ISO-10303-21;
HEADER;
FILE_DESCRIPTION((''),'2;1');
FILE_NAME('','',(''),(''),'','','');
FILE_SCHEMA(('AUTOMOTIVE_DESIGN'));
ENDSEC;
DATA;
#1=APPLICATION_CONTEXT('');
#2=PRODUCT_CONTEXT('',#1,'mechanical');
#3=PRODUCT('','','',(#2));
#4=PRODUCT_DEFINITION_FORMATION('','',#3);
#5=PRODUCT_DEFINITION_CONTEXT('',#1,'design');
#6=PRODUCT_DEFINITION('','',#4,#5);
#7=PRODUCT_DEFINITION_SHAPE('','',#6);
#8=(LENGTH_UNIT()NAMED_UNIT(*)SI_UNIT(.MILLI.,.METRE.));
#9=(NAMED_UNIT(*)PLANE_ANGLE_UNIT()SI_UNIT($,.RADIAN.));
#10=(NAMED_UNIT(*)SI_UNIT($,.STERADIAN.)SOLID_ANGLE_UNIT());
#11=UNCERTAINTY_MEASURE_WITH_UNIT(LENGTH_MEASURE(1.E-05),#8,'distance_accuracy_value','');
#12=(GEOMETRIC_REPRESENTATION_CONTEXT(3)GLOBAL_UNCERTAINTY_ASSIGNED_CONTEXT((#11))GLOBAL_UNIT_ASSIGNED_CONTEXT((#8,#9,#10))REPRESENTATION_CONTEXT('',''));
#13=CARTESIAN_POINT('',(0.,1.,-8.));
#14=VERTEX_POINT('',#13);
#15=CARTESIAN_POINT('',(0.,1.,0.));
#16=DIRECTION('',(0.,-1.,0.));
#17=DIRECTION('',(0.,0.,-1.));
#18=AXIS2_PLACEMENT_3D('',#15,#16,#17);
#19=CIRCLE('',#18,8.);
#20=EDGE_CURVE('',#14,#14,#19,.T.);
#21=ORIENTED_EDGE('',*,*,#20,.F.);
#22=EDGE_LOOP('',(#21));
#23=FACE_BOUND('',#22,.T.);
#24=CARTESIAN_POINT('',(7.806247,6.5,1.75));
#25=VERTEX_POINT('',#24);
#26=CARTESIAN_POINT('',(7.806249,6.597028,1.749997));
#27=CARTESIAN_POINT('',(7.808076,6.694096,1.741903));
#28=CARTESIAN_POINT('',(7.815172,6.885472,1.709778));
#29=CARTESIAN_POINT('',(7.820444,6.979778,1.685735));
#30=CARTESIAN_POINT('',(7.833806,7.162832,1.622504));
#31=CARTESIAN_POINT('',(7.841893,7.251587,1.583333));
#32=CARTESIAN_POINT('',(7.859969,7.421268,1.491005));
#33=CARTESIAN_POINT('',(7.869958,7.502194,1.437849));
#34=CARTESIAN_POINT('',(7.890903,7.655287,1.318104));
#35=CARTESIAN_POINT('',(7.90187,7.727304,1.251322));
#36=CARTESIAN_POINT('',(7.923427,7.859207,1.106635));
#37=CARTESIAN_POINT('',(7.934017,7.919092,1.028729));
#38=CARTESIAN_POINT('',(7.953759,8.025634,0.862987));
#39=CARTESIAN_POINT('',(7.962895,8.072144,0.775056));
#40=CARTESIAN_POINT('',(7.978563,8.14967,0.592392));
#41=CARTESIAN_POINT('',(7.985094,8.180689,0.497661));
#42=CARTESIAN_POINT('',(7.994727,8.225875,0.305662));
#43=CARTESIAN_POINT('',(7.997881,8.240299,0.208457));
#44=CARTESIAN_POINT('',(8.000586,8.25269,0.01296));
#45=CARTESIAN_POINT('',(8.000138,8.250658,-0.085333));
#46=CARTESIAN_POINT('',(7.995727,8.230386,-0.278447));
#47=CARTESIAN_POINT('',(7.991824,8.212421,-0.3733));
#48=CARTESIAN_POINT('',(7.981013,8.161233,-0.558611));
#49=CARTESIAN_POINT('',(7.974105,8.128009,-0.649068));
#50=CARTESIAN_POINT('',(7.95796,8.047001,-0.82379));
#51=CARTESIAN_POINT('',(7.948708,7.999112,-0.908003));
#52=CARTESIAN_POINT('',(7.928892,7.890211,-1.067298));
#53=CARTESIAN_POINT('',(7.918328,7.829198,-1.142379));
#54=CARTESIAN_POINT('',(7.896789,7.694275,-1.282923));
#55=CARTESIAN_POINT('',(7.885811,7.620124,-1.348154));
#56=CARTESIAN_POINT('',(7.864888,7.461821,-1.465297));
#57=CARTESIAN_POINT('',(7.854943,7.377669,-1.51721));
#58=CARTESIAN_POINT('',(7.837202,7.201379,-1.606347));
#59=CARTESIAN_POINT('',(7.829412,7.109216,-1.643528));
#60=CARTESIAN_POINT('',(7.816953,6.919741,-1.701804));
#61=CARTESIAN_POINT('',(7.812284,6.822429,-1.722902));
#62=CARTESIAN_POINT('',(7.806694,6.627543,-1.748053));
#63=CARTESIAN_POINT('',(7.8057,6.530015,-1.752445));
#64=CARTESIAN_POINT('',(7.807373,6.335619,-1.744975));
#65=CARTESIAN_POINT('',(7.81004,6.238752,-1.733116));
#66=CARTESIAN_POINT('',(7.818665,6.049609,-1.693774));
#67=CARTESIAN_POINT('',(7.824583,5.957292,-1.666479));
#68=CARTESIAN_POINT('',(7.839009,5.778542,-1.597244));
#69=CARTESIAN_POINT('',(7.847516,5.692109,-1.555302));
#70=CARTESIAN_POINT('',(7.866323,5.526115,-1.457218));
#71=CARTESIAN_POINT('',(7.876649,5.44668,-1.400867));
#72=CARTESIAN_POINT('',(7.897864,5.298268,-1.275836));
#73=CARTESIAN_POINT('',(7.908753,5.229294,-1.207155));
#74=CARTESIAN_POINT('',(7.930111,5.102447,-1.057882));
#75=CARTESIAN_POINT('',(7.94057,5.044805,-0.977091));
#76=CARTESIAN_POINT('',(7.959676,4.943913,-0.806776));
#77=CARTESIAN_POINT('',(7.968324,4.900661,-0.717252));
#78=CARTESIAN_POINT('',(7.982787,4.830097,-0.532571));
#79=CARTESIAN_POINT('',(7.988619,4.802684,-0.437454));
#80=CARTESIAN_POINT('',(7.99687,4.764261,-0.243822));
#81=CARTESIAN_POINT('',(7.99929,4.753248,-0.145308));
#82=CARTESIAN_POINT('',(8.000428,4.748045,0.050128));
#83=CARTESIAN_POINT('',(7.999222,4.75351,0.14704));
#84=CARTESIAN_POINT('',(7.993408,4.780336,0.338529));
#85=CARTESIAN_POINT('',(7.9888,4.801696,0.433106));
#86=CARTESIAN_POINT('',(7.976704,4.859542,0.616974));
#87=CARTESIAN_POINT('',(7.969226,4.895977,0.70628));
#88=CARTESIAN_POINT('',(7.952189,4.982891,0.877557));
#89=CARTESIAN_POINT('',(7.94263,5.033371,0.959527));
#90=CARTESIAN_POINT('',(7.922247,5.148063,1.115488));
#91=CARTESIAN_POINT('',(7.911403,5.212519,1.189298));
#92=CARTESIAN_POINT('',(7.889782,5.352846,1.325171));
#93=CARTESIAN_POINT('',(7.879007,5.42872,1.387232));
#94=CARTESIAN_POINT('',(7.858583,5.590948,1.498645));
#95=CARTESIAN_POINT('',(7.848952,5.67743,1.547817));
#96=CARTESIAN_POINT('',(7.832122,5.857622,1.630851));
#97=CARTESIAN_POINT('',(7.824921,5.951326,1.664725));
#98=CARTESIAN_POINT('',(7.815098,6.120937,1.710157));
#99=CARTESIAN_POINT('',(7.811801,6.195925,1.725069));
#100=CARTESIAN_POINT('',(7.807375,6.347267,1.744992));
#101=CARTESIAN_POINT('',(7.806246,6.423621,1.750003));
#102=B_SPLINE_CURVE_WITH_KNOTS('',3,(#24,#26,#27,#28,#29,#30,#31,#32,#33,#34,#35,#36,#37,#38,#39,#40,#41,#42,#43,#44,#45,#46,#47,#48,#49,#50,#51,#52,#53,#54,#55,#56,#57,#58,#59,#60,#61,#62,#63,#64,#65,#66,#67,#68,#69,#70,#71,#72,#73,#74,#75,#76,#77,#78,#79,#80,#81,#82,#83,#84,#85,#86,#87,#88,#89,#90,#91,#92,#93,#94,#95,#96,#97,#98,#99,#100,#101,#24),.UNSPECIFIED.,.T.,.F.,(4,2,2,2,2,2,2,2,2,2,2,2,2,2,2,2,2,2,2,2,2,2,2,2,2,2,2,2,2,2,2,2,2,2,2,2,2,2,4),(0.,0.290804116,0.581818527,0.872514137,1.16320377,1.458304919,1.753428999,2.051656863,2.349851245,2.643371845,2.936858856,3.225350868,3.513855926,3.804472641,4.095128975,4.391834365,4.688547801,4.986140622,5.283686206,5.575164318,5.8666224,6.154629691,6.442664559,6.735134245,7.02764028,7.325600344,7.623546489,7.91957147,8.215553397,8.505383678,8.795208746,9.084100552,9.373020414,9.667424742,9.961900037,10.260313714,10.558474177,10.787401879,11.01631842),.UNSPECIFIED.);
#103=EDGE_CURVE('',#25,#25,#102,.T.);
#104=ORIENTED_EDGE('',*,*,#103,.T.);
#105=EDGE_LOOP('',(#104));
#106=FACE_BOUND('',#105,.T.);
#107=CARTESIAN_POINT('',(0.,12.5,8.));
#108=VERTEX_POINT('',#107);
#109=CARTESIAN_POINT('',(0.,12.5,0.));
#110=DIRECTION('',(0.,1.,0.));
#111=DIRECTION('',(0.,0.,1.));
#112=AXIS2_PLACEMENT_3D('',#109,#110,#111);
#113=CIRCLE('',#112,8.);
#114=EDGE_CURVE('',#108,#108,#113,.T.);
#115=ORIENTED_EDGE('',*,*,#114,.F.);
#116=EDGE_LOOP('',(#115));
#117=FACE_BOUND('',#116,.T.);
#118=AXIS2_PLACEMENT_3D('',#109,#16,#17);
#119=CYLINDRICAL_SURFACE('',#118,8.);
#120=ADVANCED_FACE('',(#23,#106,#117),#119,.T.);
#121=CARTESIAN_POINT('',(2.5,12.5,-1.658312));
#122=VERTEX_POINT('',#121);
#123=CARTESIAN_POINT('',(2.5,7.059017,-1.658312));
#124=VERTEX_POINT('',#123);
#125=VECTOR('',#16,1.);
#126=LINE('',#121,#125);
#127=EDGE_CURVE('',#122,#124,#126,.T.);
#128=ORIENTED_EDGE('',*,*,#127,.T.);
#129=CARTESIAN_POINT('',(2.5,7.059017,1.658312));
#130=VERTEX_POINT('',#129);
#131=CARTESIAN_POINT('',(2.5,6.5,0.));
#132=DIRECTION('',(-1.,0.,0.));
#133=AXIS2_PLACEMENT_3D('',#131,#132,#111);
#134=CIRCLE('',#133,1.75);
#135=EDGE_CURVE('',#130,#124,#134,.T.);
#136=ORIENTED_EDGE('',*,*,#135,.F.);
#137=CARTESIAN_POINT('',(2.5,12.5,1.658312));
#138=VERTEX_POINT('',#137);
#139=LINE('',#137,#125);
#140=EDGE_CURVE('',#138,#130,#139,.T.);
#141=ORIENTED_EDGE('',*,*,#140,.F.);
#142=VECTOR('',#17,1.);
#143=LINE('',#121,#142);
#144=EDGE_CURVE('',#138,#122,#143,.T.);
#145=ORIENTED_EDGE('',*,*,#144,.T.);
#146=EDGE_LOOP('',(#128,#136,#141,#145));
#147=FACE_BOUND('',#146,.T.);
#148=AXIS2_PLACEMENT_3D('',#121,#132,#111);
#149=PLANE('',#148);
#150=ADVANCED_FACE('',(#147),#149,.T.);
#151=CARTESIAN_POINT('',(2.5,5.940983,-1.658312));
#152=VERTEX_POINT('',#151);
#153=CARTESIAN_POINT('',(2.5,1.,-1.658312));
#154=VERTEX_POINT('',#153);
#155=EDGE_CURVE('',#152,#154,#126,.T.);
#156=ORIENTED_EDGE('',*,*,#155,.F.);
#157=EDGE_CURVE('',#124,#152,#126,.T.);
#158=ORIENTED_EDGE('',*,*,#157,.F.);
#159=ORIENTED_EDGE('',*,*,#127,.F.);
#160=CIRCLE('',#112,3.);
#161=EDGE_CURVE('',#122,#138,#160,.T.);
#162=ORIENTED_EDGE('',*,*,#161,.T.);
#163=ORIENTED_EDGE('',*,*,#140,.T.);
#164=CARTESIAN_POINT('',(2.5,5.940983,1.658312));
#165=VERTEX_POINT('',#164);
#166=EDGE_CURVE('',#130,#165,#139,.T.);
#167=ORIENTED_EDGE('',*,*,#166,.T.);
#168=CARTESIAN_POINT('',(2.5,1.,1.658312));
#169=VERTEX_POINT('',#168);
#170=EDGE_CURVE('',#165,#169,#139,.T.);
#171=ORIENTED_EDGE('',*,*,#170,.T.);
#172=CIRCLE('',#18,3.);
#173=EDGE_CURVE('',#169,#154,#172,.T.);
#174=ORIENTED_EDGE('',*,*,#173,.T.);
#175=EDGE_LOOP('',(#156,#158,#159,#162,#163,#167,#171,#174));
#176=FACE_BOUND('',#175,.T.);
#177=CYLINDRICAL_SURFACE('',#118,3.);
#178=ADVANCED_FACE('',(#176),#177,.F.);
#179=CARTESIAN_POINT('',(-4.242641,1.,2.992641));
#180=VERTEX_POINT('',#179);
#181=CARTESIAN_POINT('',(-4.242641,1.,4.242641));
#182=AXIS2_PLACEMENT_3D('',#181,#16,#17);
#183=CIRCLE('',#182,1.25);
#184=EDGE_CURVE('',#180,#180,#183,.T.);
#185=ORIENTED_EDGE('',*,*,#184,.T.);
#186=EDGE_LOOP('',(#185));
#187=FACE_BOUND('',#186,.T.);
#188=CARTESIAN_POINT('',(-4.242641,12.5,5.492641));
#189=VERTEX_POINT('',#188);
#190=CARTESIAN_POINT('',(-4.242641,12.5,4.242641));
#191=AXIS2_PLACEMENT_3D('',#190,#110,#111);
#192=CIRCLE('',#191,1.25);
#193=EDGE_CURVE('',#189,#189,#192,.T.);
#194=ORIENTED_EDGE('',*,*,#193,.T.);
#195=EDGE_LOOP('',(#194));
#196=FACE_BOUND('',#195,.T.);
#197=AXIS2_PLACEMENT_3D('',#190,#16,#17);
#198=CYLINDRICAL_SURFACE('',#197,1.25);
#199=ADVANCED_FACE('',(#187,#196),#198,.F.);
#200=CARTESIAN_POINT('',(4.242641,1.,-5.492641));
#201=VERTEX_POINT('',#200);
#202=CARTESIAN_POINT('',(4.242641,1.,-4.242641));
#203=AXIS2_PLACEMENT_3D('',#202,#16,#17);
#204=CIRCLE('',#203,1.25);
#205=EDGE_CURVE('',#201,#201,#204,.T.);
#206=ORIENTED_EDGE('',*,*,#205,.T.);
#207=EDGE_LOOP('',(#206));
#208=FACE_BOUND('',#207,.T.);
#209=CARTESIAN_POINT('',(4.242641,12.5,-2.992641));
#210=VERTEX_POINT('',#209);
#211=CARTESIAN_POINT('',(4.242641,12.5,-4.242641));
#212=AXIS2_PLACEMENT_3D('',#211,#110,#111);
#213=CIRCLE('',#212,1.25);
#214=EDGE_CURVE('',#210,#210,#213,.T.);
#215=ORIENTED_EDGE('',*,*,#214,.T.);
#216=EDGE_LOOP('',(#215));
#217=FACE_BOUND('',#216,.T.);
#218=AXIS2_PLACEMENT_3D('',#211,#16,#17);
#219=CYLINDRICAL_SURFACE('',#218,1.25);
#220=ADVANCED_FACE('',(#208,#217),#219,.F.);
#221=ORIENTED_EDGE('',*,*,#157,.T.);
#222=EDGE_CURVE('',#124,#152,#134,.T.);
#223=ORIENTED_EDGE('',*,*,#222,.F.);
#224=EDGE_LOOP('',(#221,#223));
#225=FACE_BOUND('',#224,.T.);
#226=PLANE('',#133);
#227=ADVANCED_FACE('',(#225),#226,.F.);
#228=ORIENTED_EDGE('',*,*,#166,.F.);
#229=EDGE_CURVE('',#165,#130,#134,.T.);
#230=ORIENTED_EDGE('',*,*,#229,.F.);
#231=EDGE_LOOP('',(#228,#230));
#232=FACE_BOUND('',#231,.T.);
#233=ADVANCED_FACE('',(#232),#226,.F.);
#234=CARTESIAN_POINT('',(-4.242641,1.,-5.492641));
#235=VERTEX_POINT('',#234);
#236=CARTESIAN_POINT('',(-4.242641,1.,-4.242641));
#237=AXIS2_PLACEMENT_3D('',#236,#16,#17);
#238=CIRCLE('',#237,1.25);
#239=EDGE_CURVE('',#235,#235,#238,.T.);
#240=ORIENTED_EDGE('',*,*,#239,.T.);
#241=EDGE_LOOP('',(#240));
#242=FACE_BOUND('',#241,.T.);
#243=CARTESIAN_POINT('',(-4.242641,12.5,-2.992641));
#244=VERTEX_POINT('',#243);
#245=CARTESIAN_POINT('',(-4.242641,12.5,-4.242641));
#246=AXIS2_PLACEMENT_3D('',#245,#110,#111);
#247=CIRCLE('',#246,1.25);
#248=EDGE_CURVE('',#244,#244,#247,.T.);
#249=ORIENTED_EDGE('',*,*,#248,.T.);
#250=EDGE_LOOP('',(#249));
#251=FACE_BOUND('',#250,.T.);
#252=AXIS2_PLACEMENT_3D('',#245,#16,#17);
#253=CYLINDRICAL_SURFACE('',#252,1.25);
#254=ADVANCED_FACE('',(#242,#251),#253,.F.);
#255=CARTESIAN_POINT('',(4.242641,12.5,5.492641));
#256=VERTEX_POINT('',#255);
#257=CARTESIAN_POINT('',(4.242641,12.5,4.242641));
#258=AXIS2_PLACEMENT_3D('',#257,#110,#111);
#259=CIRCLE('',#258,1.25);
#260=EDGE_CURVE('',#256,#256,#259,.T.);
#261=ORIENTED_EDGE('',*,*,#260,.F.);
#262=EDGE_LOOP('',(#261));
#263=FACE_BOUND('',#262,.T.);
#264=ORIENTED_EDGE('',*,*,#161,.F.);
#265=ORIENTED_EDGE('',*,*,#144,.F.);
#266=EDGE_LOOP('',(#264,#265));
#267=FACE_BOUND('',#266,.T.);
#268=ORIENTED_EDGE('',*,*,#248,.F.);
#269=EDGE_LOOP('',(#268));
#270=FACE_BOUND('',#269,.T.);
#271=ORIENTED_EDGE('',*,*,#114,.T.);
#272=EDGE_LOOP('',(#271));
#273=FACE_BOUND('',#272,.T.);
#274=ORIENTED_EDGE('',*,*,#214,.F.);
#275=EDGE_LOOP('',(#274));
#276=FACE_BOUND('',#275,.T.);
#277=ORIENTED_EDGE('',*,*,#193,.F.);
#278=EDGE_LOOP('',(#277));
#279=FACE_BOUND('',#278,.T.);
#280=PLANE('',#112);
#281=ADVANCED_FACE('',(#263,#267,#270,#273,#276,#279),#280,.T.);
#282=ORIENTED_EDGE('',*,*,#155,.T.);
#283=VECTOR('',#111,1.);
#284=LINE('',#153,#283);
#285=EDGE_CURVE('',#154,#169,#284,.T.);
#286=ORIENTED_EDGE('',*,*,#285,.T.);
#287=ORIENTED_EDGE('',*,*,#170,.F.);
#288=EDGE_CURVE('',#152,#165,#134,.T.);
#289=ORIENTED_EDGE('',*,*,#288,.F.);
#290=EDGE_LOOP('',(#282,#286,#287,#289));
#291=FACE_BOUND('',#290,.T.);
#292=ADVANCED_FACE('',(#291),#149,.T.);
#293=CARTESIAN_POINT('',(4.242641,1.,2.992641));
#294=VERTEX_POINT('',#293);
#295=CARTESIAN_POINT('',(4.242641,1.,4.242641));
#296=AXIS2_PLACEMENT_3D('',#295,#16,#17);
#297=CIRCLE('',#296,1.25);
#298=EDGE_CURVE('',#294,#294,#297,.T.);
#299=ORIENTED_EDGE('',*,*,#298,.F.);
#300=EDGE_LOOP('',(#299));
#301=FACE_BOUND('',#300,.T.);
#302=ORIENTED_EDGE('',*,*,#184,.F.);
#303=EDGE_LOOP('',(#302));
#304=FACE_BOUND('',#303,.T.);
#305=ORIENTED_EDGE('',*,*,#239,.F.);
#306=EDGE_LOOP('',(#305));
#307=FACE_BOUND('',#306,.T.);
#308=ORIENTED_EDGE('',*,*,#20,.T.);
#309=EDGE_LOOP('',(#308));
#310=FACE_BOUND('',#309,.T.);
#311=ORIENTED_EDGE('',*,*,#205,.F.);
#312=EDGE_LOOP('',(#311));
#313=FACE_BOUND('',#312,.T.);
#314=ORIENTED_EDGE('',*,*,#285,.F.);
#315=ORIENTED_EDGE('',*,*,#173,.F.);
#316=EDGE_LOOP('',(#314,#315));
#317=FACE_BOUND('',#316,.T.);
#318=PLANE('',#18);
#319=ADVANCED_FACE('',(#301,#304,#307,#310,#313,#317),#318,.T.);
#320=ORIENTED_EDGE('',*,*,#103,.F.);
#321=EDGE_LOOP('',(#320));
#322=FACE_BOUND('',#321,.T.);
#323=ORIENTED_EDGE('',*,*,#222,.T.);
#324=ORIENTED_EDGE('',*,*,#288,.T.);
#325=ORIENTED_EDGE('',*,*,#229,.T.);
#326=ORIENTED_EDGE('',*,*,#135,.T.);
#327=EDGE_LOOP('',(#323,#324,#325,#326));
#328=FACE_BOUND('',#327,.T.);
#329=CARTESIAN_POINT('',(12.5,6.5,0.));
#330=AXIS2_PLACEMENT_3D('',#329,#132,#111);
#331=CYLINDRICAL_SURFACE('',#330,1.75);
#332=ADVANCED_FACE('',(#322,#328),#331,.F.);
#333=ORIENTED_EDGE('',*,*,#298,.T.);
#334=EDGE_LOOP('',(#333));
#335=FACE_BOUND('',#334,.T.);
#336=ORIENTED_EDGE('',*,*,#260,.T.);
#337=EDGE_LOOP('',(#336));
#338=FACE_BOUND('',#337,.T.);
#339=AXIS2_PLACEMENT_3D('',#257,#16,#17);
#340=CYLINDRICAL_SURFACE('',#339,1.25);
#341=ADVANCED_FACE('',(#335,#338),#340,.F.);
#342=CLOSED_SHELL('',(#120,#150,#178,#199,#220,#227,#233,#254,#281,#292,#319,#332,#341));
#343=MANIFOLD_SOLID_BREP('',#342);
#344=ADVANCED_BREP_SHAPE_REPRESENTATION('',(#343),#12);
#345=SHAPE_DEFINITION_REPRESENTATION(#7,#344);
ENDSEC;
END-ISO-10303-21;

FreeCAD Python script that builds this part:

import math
import FreeCAD as App
import Part
import Sketcher
from FreeCAD import Vector
Q = App.Units.Quantity

doc = App.newDocument("Part")
body = doc.addObject("PartDesign::Body", "Body")

# Sketch on XZ plane
sketch1 = body.newObject("Sketcher::SketchObject", "Sketch")
sketch1.AttachmentSupport = (doc.getObject("XZ_Plane"), [""])
sketch1.MapMode = "FlatFace"
sketch1.addGeometry([
    Part.Circle(Vector(0, 0, 0), Vector(0, 0, 1), 8),  # 0
    Part.Circle(Vector(-4.2, -4.2, 0), Vector(0, 0, 1), 1.2),  # 1
    Part.ArcOfCircle(Part.Circle(Vector(0, 0, 0), Vector(0, 0, 1), 3), math.radians(34), math.radians(326)),  # 2
    Part.LineSegment(Vector(2.5, -1.7, 0), Vector(2.5, 1.7, 0)),  # 3
    Part.Circle(Vector(-4.2, 4.2, 0), Vector(0, 0, 1), 1.2),  # 4
    Part.Circle(Vector(4.2, -4.2, 0), Vector(0, 0, 1), 1.2),  # 5
    Part.Circle(Vector(4.2, 4.2, 0), Vector(0, 0, 1), 1.2),  # 6
], False)
sketch1.addConstraint([
    Sketcher.Constraint("Coincident", 2, 1, 3, 2),
    Sketcher.Constraint("Coincident", 3, 1, 2, 2),
    Sketcher.Constraint("Vertical", 3),
    Sketcher.Constraint("Coincident", 0, 3, -1, 1),
    Sketcher.Constraint("Coincident", 2, 3, -1, 1),
    Sketcher.Constraint("Equal", 1, 4),
    Sketcher.Constraint("Equal", 4, 5),
    Sketcher.Constraint("Equal", 5, 6),
    Sketcher.Constraint("Symmetric", 4, 3, 5, 3, -1, 1),
    Sketcher.Constraint("Symmetric", 1, 3, 6, 3, -1, 1),
    Sketcher.Constraint("Symmetric", 1, 3, 5, 3, -2),
    Sketcher.Constraint("Diameter", 0, Q("16 mm")),
    Sketcher.Constraint("Radius", 2, Q("3 mm")),
    Sketcher.Constraint("Diameter", 1, Q("2.5 mm")),
    Sketcher.Constraint("DistanceX", -1, 1, 2, 1, Q("2.5 mm")),
    Sketcher.Constraint("DistanceX", 1, 3, -1, 1, Q("4.242641 mm")),
    Sketcher.Constraint("DistanceY", 1, 3, -1, 1, Q("4.242641 mm")),
])
pad1 = body.newObject("PartDesign::Pad", "Pad")
pad1.Profile = sketch1
pad1.Length = 12.5
pad1.Reversed = True

# Sketch on YZ plane
sketch2 = body.newObject("Sketcher::SketchObject", "Sketch001")
sketch2.AttachmentSupport = (doc.getObject("YZ_Plane"), [""])
sketch2.MapMode = "FlatFace"
sketch2.AttachmentOffset = App.Placement(Vector(0, 0, 2.5), App.Rotation())
sketch2.addGeometry(Part.Circle(Vector(6.5, 0, 0), Vector(0, 0, 1), 1.8), False)
sketch2.addConstraint([
    Sketcher.Constraint("PointOnObject", 0, 3, -1),
    Sketcher.Constraint("Diameter", 0, Q("3.5 mm")),
    Sketcher.Constraint("DistanceX", -1, 1, 0, 3, Q("6.5 mm")),
])
pocket1 = body.newObject("PartDesign::Pocket", "Pocket")
pocket1.Profile = sketch2
pocket1.Length = 10
pocket1.Reversed = True

# Sketch on XZ plane
sketch3 = body.newObject("Sketcher::SketchObject", "Sketch002")
sketch3.AttachmentSupport = (doc.getObject("XZ_Plane"), [""])
sketch3.MapMode = "FlatFace"
sketch3.addGeometry(Part.Circle(Vector(0, 0, 0), Vector(0, 0, 1), 11), False)
sketch3.addConstraint([
    Sketcher.Constraint("Coincident", 0, 3, -1, 1),
    Sketcher.Constraint("Diameter", 0, Q("22.171276 mm")),
])
pocket2 = body.newObject("PartDesign::Pocket", "Pocket001")
pocket2.Profile = sketch3
pocket2.Length = 1

doc.recompute()
